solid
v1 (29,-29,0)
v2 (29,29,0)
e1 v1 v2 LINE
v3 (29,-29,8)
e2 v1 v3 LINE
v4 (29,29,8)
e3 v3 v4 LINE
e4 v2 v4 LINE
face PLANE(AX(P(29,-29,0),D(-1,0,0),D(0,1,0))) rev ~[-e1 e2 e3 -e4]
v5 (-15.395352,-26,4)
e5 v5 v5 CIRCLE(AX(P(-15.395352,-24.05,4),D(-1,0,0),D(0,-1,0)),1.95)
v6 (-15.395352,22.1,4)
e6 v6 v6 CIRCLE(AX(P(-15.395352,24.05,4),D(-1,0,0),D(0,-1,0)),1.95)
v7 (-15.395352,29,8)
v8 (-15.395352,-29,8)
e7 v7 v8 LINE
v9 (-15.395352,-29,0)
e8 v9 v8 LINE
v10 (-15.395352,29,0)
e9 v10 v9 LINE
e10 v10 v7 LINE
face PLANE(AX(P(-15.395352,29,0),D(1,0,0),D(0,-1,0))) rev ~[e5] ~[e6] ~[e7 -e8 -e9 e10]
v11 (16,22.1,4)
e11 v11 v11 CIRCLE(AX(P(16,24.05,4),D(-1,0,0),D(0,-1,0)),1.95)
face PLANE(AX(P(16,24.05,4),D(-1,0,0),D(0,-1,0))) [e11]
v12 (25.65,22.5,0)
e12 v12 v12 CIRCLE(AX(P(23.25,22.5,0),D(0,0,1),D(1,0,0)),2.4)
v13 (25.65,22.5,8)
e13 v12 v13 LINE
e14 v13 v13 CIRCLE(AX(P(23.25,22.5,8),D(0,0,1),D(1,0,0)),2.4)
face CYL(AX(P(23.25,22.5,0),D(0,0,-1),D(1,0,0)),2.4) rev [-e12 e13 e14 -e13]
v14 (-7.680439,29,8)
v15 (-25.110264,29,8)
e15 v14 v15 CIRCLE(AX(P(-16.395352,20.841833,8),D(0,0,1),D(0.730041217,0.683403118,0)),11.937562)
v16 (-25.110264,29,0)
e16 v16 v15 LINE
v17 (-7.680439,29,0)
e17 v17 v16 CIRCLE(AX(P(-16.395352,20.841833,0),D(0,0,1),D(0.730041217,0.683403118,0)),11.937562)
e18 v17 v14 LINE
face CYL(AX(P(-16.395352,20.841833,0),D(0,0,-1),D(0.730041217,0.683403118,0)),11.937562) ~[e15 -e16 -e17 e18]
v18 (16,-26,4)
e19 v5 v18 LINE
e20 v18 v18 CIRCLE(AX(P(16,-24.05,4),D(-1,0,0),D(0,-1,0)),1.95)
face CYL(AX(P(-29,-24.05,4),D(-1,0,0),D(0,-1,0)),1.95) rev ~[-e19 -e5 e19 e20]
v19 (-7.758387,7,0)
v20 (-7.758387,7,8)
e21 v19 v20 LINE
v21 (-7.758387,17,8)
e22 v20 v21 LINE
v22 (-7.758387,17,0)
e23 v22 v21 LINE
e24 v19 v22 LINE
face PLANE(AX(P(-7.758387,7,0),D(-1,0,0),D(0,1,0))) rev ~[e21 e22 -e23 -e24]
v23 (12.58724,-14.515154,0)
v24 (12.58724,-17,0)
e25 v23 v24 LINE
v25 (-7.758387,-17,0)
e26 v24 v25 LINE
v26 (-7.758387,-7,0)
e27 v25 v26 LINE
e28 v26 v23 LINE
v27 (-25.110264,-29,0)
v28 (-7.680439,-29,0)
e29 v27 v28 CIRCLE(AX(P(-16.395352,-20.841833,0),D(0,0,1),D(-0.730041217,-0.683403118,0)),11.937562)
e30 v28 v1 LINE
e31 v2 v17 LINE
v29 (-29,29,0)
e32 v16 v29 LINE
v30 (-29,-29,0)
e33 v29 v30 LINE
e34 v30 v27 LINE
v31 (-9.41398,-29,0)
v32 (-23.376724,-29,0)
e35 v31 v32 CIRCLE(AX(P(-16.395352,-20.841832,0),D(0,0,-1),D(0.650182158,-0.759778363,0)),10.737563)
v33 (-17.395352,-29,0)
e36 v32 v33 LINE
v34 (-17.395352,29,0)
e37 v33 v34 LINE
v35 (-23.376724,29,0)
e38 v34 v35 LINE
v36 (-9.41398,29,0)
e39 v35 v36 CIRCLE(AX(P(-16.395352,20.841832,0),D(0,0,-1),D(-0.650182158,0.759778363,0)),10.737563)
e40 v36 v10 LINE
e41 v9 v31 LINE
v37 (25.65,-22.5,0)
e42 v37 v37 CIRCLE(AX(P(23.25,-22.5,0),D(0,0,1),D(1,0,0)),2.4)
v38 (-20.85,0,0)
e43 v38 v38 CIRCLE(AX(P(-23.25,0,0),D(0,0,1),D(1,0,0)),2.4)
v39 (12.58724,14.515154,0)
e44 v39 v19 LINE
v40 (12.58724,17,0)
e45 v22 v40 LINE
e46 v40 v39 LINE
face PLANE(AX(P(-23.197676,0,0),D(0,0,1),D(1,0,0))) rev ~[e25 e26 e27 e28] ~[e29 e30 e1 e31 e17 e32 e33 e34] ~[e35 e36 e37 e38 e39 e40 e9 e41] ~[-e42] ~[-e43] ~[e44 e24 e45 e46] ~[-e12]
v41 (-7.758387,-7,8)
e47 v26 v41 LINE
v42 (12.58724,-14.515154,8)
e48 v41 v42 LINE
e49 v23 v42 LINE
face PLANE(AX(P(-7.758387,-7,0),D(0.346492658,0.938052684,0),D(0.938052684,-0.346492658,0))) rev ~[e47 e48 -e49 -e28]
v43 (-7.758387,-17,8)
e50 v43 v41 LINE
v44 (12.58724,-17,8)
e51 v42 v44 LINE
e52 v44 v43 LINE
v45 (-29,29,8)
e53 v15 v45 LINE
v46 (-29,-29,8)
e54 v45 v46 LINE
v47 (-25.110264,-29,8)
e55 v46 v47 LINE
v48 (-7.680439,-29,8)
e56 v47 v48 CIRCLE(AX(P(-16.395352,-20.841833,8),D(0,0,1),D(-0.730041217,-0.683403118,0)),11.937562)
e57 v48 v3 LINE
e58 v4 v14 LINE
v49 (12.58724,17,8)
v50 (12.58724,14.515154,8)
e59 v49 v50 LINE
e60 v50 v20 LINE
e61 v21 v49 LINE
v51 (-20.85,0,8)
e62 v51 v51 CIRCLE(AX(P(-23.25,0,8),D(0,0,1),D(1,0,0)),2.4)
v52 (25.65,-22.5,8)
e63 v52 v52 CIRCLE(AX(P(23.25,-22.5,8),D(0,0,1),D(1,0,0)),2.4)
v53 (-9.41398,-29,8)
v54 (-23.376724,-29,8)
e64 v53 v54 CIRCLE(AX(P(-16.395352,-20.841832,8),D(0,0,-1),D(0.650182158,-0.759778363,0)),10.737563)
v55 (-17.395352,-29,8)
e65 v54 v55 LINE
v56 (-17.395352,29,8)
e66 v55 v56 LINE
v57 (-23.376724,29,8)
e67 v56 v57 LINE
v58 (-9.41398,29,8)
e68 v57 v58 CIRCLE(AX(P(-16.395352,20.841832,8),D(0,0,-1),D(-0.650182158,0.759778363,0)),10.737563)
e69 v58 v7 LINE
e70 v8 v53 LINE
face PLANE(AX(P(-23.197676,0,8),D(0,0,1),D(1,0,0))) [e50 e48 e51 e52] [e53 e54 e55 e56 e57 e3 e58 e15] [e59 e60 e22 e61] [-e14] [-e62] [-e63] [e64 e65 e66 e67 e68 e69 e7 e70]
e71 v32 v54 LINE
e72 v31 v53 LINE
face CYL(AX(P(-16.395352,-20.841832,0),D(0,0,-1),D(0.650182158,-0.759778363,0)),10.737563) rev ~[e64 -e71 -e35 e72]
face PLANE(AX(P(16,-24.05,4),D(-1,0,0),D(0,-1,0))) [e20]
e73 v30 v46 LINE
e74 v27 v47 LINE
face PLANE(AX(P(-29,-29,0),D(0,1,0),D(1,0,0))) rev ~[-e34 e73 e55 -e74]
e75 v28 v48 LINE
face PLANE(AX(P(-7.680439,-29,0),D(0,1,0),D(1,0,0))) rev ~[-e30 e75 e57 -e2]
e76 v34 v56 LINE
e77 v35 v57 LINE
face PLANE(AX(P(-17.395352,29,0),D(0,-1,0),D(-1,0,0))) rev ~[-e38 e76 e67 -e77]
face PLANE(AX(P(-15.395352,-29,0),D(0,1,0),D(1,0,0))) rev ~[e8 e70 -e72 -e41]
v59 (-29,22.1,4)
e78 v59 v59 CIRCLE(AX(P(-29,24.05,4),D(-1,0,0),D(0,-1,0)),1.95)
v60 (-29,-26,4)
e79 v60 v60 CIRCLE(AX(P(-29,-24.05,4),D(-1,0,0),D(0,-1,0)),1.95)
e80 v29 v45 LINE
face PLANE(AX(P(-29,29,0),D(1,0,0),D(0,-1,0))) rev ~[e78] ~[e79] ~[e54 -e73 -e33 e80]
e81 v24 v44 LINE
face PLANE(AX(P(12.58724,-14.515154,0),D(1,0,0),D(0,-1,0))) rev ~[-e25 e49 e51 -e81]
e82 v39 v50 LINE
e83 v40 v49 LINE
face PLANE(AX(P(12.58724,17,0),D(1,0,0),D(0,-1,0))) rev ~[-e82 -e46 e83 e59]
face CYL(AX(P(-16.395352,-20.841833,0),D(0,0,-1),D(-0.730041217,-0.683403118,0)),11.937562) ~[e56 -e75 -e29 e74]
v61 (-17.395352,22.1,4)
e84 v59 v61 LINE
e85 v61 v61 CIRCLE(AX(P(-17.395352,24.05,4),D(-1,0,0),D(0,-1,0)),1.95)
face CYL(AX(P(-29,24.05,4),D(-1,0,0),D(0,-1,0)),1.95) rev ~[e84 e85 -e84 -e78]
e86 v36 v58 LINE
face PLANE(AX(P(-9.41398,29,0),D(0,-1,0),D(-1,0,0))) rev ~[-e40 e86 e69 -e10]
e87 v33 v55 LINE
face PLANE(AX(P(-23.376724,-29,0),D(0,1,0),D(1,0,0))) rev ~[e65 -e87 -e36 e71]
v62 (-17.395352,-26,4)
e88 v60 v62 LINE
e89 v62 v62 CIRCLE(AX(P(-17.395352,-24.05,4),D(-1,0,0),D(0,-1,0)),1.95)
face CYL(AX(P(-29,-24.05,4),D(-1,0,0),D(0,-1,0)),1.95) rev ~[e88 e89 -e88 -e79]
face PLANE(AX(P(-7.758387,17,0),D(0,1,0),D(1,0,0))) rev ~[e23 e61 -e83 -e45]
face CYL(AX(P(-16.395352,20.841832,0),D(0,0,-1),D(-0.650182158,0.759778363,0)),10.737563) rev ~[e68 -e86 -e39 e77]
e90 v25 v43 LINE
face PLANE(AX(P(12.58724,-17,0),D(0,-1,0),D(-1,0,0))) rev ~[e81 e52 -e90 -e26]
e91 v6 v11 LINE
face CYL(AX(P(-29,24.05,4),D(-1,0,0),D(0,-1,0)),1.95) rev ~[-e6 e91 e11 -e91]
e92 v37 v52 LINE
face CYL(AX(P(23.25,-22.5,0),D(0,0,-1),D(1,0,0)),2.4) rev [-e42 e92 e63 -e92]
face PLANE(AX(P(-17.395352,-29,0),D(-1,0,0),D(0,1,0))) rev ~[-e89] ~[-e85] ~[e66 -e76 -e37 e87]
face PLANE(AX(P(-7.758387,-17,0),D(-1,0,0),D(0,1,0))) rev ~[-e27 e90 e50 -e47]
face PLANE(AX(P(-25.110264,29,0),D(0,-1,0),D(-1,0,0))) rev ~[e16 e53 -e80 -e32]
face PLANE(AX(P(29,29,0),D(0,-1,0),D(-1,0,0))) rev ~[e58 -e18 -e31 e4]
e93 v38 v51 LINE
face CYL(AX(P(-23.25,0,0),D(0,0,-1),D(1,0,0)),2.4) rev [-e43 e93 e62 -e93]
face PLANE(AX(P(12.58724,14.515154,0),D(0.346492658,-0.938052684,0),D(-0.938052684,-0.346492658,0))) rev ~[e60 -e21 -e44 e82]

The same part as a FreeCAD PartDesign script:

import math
import FreeCAD as App
import Part
import Sketcher

V = App.Vector


def add_polygon(sketch, points):
    """Adds a closed chain of lines whose ends are joined by coincident constraints."""
    first, n = sketch.GeometryCount, len(points)
    for a, b in zip(points, points[1:] + points[:1]):
        sketch.addGeometry(Part.LineSegment(App.Vector(*a, 0), App.Vector(*b, 0)), False)
    for i in range(n):
        sketch.addConstraint(Sketcher.Constraint("Coincident", first + i, 2, first + (i + 1) % n, 1))

doc = App.newDocument("Part")
body = doc.addObject("PartDesign::Body", "Body")

sketch1 = doc.addObject("Sketcher::SketchObject", "Sketch")
body.addObject(sketch1)
sketch1.AttachmentSupport = (doc.XY_Plane, [""])
sketch1.MapMode = "FlatFace"
sketch1.addGeometry(Part.LineSegment(V(-29, 29, 0), V(-29, -29, 0)), False)
sketch1.addGeometry(Part.LineSegment(V(-29, -29, 0), V(-25.110264, -29, 0)), False)
sketch1.addGeometry(Part.ArcOfCircle(Part.Circle(V(-16.395352, -20.841833, 0), V(0, 0, 1), 11.937562), math.radians(-136.88985), math.radians(-43.11015)), False)
sketch1.addGeometry(Part.LineSegment(V(-7.680439, -29, 0), V(29, -29, 0)), False)
sketch1.addGeometry(Part.LineSegment(V(29, -29, 0), V(29, 29, 0)), False)
sketch1.addGeometry(Part.LineSegment(V(29, 29, 0), V(-7.680439, 29, 0)), False)
sketch1.addGeometry(Part.ArcOfCircle(Part.Circle(V(-16.395352, 20.841833, 0), V(0, 0, 1), 11.937562), math.radians(43.11015), math.radians(136.88985)), False)
sketch1.addGeometry(Part.LineSegment(V(-25.110264, 29, 0), V(-29, 29, 0)), False)
sketch1.addGeometry(Part.LineSegment(V(-9.41398, 29, 0), V(-15.395352, 29, 0)), False)
sketch1.addGeometry(Part.LineSegment(V(-15.395352, 29, 0), V(-15.395352, -29, 0)), False)
sketch1.addGeometry(Part.LineSegment(V(-15.395352, -29, 0), V(-9.41398, -29, 0)), False)
sketch1.addGeometry(Part.ArcOfCircle(Part.Circle(V(-16.395352, -20.841832, 0), V(0, 0, 1), 10.737563), math.radians(-130.555337), math.radians(-49.444663)), False)
sketch1.addGeometry(Part.LineSegment(V(-23.376724, -29, 0), V(-17.395352, -29, 0)), False)
sketch1.addGeometry(Part.LineSegment(V(-17.395352, -29, 0), V(-17.395352, 29, 0)), False)
sketch1.addGeometry(Part.LineSegment(V(-17.395352, 29, 0), V(-23.376724, 29, 0)), False)
sketch1.addGeometry(Part.ArcOfCircle(Part.Circle(V(-16.395352, 20.841832, 0), V(0, 0, 1), 10.737563), math.radians(49.444663), math.radians(130.555337)), False)
sketch1.addGeometry(Part.Circle(V(-23.25, 0, 0), V(0, 0, 1), 2.4), False)
sketch1.addGeometry(Part.Circle(V(23.25, 22.5, 0), V(0, 0, 1), 2.4), False)
add_polygon(sketch1, [(-7.758387, -17), (-7.758387, -7), (12.58724, -14.515154), (12.58724, -17)])
sketch1.addGeometry(Part.Circle(V(23.25, -22.5, 0), V(0, 0, 1), 2.4), False)
add_polygon(sketch1, [(12.58724, 14.515154), (-7.758387, 7), (-7.758387, 17), (12.58724, 17)])
sketch1.addConstraint([
    Sketcher.Constraint("Coincident", 0, 2, 1, 1),
    Sketcher.Constraint("Coincident", 1, 2, 2, 1),
    Sketcher.Constraint("Coincident", 2, 2, 3, 1),
    Sketcher.Constraint("Coincident", 3, 2, 4, 1),
    Sketcher.Constraint("Coincident", 4, 2, 5, 1),
    Sketcher.Constraint("Coincident", 5, 2, 6, 1),
    Sketcher.Constraint("Coincident", 6, 2, 7, 1),
    Sketcher.Constraint("Coincident", 7, 2, 0, 1),
    Sketcher.Constraint("Coincident", 8, 2, 9, 1),
    Sketcher.Constraint("Coincident", 9, 2, 10, 1),
    Sketcher.Constraint("Coincident", 10, 2, 11, 2),
    Sketcher.Constraint("Coincident", 11, 1, 12, 1),
    Sketcher.Constraint("Coincident", 12, 2, 13, 1),
    Sketcher.Constraint("Coincident", 13, 2, 14, 1),
    Sketcher.Constraint("Coincident", 14, 2, 15, 2),
    Sketcher.Constraint("Coincident", 15, 1, 8, 1),
    Sketcher.Constraint("Vertical", 0),
    Sketcher.Constraint("Horizontal", 1),
    Sketcher.Constraint("Horizontal", 3),
    Sketcher.Constraint("Vertical", 4),
    Sketcher.Constraint("Horizontal", 5),
    Sketcher.Constraint("Horizontal", 7),
    Sketcher.Constraint("Horizontal", 8),
    Sketcher.Constraint("Vertical", 9),
    Sketcher.Constraint("Horizontal", 10),
    Sketcher.Constraint("Horizontal", 12),
    Sketcher.Constraint("Vertical", 13),
    Sketcher.Constraint("Horizontal", 14),
    Sketcher.Constraint("Vertical", 18),
    Sketcher.Constraint("Vertical", 20),
    Sketcher.Constraint("Horizontal", 21),
    Sketcher.Constraint("Vertical", 24),
    Sketcher.Constraint("Horizontal", 25),
    Sketcher.Constraint("Vertical", 26),
    Sketcher.Constraint("Coincident", 11, 3, 2, 3),
    Sketcher.Constraint("Coincident", 15, 3, 6, 3),
    Sketcher.Constraint("Equal", 2, 6),
    Sketcher.Constraint("Equal", 11, 15),
    Sketcher.Constraint("Equal", 16, 17),
    Sketcher.Constraint("Equal", 17, 22),
    Sketcher.Constraint("Symmetric", 0, 2, 4, 2, -1, 1),
    Sketcher.Constraint("Symmetric", 2, 3, 6, 3, -1),
    Sketcher.Constraint("Symmetric", 17, 3, 22, 3, -1),
    Sketcher.Constraint("Symmetric", 18, 2, 23, 2, -1),
    Sketcher.Constraint("Symmetric", 20, 2, 25, 2, -1),
    Sketcher.Constraint("PointOnObject", 16, 3, -1),
    Sketcher.Constraint("Horizontal", 1, 2, 2, 2),
    Sketcher.Constraint("Horizontal", 5, 2, 6, 2),
    Sketcher.Constraint("Horizontal", 7, 2, 8, 2),
    Sketcher.Constraint("Horizontal", 3, 2, 9, 2),
    Sketcher.Constraint("Horizontal", 10, 2, 11, 1),
    Sketcher.Constraint("Horizontal", 8, 2, 13, 2),
    Sketcher.Constraint("Equal", 10, 12),
    Sketcher.Constraint("Equal", 20, 26),
    Sketcher.Constraint("Diameter", 16, 4.8),
    Sketcher.Constraint("DistanceY", 0, 2, 0, 1, 58.0),
    Sketcher.Constraint("DistanceY", 18, 1, 18, 2, 10.0),
    Sketcher.Constraint("DistanceX", 0, 2, -1, 1, 29.0),
    Sketcher.Constraint("DistanceY", 18, 2, -1, 1, 7.0),
    Sketcher.Constraint("DistanceY", 22, 3, 17, 3, 45.0),
    Sketcher.Constraint("DistanceX", 6, 3, 8, 2, 0.999999),
    Sketcher.Constraint("DistanceX", 16, 3, 17, 3, 46.5),
    Sketcher.Constraint("DistanceX", 16, 3, -1, 1, 23.25),
    Sketcher.Constraint("Radius", 2, 11.937562),
    Sketcher.Constraint("Radius", 11, 10.737563),
    Sketcher.Constraint("DistanceX", 3, 1, 3, 2, 36.680439),
    Sketcher.Constraint("DistanceX", 1, 1, 1, 2, 3.889736),
    Sketcher.Constraint("DistanceX", 21, 2, 21, 1, 20.345627),
    Sketcher.Constraint("DistanceY", 20, 2, 20, 1, 2.484846),
    Sketcher.Constraint("DistanceX", -1, 1, 19, 2, 12.58724),
])
pad1 = doc.addObject("PartDesign::Pad", "Pad")
body.addObject(pad1)
pad1.Profile = sketch1
pad1.Length = 8

sketch2 = doc.addObject("Sketcher::SketchObject", "Sketch001")
body.addObject(sketch2)
sketch2.AttachmentSupport = (doc.YZ_Plane, [""])
sketch2.MapMode = "FlatFace"
sketch2.AttachmentOffset = App.Placement(V(0, 0, -29), App.Rotation())
sketch2.addGeometry([
    Part.Circle(V(-24.05, 4, 0), V(0, 0, 1), 1.95),
    Part.Circle(V(24.05, 4, 0), V(0, 0, 1), 1.95),
], False)
sketch2.addConstraint([
    Sketcher.Constraint("Equal", 0, 1),
    Sketcher.Constraint("Symmetric", 0, 3, 1, 3, -2),
    Sketcher.Constraint("Diameter", 0, 3.9),
    Sketcher.Constraint("DistanceY", -1, 1, 0, 3, 4.0),
    Sketcher.Constraint("DistanceX", 0, 3, 1, 3, 48.1),
])
pocket1 = doc.addObject("PartDesign::Pocket", "Pocket")
body.addObject(pocket1)
pocket1.Profile = sketch2
pocket1.Length = 45
pocket1.Reversed = True

doc.recompute()
